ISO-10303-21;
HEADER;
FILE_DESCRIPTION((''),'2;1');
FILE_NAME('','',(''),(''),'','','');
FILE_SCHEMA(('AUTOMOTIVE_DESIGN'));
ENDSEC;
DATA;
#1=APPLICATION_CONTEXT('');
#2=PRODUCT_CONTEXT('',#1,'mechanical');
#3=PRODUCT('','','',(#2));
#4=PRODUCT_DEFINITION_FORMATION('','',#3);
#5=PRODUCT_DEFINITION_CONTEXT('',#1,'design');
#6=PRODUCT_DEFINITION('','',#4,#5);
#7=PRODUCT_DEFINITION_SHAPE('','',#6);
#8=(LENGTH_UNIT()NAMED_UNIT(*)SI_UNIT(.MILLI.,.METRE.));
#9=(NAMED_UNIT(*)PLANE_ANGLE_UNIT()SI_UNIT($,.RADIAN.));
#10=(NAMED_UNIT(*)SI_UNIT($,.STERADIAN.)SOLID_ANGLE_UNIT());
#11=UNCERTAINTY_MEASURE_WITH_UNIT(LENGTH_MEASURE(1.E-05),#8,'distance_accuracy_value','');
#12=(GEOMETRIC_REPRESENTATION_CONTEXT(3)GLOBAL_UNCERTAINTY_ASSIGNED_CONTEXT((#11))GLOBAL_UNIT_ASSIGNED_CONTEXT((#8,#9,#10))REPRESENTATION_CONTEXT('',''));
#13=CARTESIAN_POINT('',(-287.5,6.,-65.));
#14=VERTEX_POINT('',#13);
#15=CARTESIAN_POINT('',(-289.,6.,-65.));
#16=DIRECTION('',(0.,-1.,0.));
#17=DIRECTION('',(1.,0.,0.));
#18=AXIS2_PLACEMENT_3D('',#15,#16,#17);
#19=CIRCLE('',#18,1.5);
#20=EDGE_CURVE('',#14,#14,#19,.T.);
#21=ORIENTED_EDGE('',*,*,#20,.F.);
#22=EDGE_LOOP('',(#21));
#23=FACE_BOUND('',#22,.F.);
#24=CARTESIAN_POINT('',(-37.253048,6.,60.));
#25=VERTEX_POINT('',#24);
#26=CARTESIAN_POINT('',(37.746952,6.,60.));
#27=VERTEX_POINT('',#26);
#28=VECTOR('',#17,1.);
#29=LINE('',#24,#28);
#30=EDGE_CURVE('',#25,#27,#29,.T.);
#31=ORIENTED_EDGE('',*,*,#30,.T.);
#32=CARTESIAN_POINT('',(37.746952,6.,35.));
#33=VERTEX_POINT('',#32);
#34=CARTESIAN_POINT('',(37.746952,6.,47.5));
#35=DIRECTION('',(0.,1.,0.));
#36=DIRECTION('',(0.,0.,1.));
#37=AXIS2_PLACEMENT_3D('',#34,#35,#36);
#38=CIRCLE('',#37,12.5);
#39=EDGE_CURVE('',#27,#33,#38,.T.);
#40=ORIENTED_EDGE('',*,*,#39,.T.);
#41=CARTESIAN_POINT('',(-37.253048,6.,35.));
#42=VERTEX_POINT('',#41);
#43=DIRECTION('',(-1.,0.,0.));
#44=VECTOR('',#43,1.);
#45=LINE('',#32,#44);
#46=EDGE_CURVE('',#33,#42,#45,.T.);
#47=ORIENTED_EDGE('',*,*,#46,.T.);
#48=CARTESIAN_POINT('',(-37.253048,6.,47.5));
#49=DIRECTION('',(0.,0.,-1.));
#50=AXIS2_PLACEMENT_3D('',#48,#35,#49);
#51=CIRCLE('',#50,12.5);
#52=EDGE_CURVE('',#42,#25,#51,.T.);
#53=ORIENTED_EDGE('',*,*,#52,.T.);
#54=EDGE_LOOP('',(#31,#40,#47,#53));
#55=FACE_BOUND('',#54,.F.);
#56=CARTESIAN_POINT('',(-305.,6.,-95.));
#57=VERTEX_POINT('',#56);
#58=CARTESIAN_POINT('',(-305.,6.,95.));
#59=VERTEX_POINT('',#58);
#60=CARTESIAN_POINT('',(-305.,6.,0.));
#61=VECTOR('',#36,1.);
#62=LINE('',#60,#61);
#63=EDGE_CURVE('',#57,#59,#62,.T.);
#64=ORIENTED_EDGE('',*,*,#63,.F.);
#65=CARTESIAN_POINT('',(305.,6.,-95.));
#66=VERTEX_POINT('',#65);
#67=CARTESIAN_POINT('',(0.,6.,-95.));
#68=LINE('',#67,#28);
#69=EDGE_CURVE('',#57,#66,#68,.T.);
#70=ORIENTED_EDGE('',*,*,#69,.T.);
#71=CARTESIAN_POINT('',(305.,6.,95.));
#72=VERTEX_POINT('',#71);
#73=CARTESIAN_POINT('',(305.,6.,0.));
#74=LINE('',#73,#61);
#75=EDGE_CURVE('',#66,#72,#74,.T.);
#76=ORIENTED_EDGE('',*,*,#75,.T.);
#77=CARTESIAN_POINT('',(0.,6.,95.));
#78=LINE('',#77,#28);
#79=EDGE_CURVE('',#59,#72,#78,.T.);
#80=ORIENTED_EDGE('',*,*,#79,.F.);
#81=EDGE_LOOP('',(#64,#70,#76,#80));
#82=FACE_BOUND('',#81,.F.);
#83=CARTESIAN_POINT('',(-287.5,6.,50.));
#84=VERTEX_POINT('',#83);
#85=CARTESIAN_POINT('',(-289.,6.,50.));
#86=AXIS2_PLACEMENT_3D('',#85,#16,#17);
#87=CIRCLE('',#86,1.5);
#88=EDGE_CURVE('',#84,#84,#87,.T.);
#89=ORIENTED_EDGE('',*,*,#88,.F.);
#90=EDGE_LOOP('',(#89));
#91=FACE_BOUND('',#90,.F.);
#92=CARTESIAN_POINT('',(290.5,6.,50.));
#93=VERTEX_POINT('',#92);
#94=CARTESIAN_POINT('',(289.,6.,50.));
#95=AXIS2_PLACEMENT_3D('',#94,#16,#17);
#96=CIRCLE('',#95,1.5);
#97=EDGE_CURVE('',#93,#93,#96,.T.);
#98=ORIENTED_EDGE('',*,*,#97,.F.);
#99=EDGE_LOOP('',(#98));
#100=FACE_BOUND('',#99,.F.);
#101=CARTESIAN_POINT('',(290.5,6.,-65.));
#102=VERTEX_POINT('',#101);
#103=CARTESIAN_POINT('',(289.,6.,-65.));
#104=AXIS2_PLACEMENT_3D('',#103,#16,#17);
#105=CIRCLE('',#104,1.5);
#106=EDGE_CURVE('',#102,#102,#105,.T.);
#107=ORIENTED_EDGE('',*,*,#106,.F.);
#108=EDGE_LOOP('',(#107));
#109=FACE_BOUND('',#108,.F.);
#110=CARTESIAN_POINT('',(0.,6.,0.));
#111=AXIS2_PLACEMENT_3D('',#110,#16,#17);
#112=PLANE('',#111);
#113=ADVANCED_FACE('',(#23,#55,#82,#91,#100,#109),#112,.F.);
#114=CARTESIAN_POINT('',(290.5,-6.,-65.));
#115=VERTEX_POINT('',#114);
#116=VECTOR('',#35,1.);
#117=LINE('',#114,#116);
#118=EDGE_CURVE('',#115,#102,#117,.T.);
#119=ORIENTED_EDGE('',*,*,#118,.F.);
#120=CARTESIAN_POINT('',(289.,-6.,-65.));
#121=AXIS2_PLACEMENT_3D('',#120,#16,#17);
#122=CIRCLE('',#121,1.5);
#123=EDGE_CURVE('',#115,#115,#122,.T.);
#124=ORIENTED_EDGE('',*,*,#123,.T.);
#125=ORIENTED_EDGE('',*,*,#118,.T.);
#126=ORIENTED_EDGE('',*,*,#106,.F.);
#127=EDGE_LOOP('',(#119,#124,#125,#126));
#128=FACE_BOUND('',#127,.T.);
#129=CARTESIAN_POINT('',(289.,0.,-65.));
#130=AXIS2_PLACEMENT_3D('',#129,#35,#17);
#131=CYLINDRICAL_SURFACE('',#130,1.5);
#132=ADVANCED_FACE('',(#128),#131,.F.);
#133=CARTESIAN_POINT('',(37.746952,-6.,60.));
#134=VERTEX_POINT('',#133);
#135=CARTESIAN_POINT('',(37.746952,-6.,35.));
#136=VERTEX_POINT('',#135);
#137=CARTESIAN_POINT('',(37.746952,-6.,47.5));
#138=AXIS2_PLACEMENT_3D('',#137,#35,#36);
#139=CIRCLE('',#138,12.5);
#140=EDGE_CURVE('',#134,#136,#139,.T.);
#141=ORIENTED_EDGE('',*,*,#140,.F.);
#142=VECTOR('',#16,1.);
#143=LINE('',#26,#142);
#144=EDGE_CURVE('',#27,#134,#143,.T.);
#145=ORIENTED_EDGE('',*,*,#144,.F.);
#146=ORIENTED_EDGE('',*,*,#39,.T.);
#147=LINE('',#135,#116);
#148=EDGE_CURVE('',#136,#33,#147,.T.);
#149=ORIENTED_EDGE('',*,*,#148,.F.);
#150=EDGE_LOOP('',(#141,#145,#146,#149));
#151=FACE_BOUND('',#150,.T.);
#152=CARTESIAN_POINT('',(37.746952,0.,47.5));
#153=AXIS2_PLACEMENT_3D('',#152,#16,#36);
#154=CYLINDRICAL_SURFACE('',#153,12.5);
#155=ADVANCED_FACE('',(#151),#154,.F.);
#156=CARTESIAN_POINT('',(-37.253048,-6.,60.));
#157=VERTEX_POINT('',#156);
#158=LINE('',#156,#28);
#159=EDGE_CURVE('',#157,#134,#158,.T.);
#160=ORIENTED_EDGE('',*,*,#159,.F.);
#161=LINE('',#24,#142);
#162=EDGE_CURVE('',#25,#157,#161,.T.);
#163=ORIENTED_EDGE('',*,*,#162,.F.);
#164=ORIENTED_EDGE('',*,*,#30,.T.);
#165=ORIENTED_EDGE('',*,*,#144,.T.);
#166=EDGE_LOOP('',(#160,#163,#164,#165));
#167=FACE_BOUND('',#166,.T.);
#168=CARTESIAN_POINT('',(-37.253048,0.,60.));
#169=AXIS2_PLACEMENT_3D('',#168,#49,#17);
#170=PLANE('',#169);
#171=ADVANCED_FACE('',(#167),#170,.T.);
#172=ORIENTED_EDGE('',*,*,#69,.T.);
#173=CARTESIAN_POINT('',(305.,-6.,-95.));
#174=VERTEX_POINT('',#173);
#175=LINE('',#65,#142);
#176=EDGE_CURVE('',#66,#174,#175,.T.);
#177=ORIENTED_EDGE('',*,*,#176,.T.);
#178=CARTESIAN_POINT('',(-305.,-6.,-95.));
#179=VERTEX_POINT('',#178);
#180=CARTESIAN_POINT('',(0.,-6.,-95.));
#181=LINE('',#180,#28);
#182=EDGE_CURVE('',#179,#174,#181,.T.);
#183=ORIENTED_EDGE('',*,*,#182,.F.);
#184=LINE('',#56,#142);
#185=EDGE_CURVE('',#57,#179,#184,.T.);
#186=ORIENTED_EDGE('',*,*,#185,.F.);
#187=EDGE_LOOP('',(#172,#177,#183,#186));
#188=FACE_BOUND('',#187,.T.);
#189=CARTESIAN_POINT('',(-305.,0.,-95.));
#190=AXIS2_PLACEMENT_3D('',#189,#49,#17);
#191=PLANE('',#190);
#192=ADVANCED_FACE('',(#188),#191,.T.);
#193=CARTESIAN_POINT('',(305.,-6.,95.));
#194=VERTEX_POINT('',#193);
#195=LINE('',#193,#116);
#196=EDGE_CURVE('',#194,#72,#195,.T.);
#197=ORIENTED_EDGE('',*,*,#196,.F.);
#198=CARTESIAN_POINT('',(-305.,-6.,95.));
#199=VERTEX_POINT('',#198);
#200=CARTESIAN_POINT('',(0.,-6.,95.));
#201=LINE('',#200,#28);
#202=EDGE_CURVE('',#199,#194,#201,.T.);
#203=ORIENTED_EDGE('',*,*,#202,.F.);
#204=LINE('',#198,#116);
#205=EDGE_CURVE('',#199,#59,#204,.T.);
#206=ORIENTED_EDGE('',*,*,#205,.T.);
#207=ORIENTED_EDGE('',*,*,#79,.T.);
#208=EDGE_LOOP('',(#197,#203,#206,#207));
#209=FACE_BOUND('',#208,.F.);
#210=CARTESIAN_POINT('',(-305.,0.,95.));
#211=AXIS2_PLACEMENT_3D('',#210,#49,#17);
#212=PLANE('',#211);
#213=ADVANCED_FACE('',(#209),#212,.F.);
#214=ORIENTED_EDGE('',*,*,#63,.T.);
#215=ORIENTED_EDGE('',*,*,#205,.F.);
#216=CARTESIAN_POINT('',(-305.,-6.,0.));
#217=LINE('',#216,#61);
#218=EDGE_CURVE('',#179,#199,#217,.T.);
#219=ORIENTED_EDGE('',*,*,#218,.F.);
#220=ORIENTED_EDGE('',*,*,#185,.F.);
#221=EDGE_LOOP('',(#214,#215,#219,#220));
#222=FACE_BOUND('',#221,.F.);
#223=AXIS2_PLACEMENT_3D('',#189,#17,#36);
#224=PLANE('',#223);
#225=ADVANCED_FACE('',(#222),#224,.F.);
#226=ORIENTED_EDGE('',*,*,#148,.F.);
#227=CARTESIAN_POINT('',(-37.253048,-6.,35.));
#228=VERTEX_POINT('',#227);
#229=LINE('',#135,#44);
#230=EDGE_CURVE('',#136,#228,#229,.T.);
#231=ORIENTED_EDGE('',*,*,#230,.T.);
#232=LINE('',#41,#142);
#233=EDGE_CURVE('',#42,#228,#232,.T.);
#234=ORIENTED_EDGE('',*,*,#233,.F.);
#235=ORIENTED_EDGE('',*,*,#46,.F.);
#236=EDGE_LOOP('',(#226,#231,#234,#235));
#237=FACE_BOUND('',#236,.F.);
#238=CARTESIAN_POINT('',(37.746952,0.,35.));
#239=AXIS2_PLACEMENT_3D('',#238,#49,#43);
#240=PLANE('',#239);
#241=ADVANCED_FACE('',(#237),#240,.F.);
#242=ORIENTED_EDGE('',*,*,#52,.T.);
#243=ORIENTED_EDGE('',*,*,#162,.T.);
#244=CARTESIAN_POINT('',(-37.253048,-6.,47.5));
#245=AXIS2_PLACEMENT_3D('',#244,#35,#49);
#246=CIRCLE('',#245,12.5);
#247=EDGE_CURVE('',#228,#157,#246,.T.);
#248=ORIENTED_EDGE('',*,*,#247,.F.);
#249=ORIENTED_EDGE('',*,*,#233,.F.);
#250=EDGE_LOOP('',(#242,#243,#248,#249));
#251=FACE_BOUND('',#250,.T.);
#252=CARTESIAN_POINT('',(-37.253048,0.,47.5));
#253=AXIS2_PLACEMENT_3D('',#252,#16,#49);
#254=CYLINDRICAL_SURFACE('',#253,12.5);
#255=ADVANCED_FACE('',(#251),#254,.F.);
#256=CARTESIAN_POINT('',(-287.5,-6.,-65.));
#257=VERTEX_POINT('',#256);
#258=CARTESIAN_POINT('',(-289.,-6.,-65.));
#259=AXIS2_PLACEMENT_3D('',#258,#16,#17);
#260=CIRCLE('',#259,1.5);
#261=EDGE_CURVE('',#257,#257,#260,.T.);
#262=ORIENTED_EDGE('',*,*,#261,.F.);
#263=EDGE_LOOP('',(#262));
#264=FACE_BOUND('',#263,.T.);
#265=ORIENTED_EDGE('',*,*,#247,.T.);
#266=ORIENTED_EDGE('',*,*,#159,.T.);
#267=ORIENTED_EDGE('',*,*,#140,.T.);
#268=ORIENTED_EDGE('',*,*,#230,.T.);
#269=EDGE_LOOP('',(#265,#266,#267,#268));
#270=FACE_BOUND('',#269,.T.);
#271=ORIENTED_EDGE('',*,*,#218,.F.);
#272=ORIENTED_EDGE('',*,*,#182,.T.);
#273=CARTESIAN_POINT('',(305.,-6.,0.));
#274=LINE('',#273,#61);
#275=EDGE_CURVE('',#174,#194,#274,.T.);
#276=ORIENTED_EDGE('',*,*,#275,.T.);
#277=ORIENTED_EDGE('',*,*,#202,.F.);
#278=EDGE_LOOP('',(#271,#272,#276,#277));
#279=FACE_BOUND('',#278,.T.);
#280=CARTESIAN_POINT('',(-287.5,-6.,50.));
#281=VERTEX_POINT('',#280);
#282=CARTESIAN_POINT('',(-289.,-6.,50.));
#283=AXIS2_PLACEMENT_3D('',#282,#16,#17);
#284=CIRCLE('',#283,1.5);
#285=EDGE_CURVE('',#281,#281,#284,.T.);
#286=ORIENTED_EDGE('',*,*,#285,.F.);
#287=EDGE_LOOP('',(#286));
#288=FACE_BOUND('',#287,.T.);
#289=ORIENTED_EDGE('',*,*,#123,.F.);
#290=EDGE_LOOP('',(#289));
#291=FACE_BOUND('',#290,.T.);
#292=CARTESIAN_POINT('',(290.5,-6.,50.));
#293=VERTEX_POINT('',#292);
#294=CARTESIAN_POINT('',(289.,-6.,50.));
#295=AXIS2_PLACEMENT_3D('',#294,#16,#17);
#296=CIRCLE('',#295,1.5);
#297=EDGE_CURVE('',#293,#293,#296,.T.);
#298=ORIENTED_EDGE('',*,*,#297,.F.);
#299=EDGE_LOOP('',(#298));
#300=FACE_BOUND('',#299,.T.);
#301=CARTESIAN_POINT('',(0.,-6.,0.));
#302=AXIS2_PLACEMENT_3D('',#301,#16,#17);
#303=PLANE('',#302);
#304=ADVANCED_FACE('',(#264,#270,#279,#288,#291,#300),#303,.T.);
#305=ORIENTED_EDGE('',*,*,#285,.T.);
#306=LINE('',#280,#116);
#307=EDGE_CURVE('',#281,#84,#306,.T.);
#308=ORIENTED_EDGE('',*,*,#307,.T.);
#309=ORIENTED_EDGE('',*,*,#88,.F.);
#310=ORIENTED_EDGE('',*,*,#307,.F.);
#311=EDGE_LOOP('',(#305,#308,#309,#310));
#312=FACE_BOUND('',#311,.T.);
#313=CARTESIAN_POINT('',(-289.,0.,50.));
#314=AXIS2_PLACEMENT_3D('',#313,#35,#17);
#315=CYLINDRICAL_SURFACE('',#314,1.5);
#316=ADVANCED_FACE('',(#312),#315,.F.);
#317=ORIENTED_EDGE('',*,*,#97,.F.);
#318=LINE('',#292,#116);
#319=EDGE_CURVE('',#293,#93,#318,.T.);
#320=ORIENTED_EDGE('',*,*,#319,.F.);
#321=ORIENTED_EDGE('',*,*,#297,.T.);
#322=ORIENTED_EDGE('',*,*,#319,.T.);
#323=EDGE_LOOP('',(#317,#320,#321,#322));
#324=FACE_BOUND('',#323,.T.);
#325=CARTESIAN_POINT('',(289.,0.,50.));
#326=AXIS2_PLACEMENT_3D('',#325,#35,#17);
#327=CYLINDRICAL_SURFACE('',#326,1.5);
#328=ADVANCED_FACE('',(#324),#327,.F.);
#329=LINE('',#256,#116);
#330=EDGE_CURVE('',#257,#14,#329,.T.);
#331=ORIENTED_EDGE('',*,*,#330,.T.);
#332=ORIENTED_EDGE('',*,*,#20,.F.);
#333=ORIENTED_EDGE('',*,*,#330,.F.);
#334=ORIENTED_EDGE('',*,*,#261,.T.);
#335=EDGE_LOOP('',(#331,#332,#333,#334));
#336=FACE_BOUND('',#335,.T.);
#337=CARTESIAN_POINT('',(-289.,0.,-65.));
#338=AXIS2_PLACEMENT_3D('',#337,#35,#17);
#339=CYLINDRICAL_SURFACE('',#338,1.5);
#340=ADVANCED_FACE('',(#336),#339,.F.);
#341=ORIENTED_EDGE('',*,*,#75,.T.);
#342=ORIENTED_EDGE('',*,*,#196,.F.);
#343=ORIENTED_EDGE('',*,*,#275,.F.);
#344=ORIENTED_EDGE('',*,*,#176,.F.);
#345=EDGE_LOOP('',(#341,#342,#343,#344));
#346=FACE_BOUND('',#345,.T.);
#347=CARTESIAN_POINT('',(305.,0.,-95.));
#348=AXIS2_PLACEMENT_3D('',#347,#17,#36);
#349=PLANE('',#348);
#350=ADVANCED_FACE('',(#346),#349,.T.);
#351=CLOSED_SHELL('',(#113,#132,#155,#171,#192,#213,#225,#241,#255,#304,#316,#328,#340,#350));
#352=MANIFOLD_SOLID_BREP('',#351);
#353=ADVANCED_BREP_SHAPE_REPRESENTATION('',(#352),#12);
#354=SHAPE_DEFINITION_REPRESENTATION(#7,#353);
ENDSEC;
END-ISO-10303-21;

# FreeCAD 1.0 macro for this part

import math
import FreeCAD as App
import Part
import Sketcher

V = App.Vector
Q = App.Units.Quantity

doc = App.newDocument("Part")
body = doc.addObject("PartDesign::Body", "Body")

# Sketch on XZ plane
sketch1 = doc.addObject("Sketcher::SketchObject", "Sketch")
body.addObject(sketch1)
sketch1.AttachmentSupport = (doc.XZ_Plane, [""])
sketch1.MapMode = "FlatFace"
sketch1.addGeometry(Part.LineSegment(V(-305, 95, 0), V(-305, -95, 0)), False)
sketch1.addGeometry(Part.LineSegment(V(-305, -95, 0), V(305, -95, 0)), False)
sketch1.addGeometry(Part.LineSegment(V(305, -95, 0), V(305, 95, 0)), False)
sketch1.addGeometry(Part.LineSegment(V(305, 95, 0), V(-305, 95, 0)), False)
sketch1.addGeometry(Part.Circle(V(-289, -65, 0), V(0, 0, 1), 1.5), False)
sketch1.addGeometry(Part.Circle(V(289, -65, 0), V(0, 0, 1), 1.5), False)
sketch1.addGeometry(Part.Circle(V(-289, 50, 0), V(0, 0, 1), 1.5), False)
sketch1.addGeometry(Part.LineSegment(V(-37.3, 60, 0), V(37.7, 60, 0)), False)
sketch1.addGeometry(Part.ArcOfCircle(Part.Circle(V(37.7, 47.5, 0), V(0, 0, 1), 12.5), math.radians(-90), math.radians(90)), False)
sketch1.addGeometry(Part.LineSegment(V(37.7, 35, 0), V(-37.3, 35, 0)), False)
sketch1.addGeometry(Part.ArcOfCircle(Part.Circle(V(-37.3, 47.5, 0), V(0, 0, 1), 12.5), math.radians(90), math.radians(270)), False)
sketch1.addGeometry(Part.Circle(V(289, 50, 0), V(0, 0, 1), 1.5), False)
sketch1.addConstraint(Sketcher.Constraint("Coincident", 0, 2, 1, 1))
sketch1.addConstraint(Sketcher.Constraint("Coincident", 1, 2, 2, 1))
sketch1.addConstraint(Sketcher.Constraint("Coincident", 2, 2, 3, 1))
sketch1.addConstraint(Sketcher.Constraint("Coincident", 3, 2, 0, 1))
sketch1.addConstraint(Sketcher.Constraint("Tangent", 7, 2, 8, 2))
sketch1.addConstraint(Sketcher.Constraint("Tangent", 8, 1, 9, 1))
sketch1.addConstraint(Sketcher.Constraint("Tangent", 9, 2, 10, 2))
sketch1.addConstraint(Sketcher.Constraint("Tangent", 10, 1, 7, 1))
sketch1.addConstraint(Sketcher.Constraint("Vertical", 0))
sketch1.addConstraint(Sketcher.Constraint("Horizontal", 1))
sketch1.addConstraint(Sketcher.Constraint("Vertical", 2))
sketch1.addConstraint(Sketcher.Constraint("Horizontal", 3))
sketch1.addConstraint(Sketcher.Constraint("Horizontal", 7))
sketch1.addConstraint(Sketcher.Constraint("Horizontal", 9))
sketch1.addConstraint(Sketcher.Constraint("Equal", 4, 5))
sketch1.addConstraint(Sketcher.Constraint("Equal", 5, 6))
sketch1.addConstraint(Sketcher.Constraint("Equal", 6, 11))
sketch1.addConstraint(Sketcher.Constraint("Symmetric", 0, 2, 2, 2, -1, 1))
sketch1.addConstraint(Sketcher.Constraint("Symmetric", 4, 3, 5, 3, -2))
sketch1.addConstraint(Sketcher.Constraint("Symmetric", 6, 3, 11, 3, -2))
sketch1.addConstraint(Sketcher.Constraint("Vertical", 4, 3, 6, 3))
sketch1.addConstraint(Sketcher.Constraint("Diameter", 4, Q("3 mm")))
sketch1.addConstraint(Sketcher.Constraint("Radius", 8, Q("12.5 mm")))
sketch1.addConstraint(Sketcher.Constraint("DistanceX", 1, 1, 1, 2, Q("610 mm")))
sketch1.addConstraint(Sketcher.Constraint("DistanceX", 7, 1, 7, 2, Q("75 mm")))
sketch1.addConstraint(Sketcher.Constraint("DistanceY", 0, 2, 0, 1, Q("190 mm")))
sketch1.addConstraint(Sketcher.Constraint("DistanceX", 4, 3, -1, 1, Q("289 mm")))
sketch1.addConstraint(Sketcher.Constraint("DistanceY", 4, 3, -1, 1, Q("65 mm")))
sketch1.addConstraint(Sketcher.Constraint("DistanceY", -1, 1, 6, 3, Q("50 mm")))
sketch1.addConstraint(Sketcher.Constraint("DistanceY", -1, 1, 7, 2, Q("60 mm")))
sketch1.addConstraint(Sketcher.Constraint("DistanceX", -1, 1, 8, 3, Q("37.746952 mm")))
pad1 = doc.addObject("PartDesign::Pad", "Pad")
body.addObject(pad1)
pad1.Profile = sketch1
pad1.Length = 12
pad1.Midplane = True

doc.recompute()
